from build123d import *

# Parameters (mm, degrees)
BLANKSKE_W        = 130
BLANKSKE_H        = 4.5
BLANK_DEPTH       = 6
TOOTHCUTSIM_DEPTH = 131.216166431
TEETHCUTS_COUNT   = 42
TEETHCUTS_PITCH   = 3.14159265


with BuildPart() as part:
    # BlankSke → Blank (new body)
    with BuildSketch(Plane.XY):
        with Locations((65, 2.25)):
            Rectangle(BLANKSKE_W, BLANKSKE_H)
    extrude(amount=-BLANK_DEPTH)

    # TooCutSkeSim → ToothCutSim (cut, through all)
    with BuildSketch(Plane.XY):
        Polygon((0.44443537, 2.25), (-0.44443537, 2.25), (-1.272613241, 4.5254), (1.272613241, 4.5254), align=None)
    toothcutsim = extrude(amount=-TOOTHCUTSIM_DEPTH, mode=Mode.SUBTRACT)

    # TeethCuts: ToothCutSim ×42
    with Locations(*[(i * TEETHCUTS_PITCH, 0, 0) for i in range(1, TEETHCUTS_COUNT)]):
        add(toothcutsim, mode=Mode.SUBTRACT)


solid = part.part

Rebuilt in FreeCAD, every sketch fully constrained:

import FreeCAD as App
import Part
import Sketcher
Q = App.Units.Quantity


def add_polygon(sketch, points):
    """Adds a closed chain of lines whose ends are joined by coincident constraints."""
    first, n = sketch.GeometryCount, len(points)
    for a, b in zip(points, points[1:] + points[:1]):
        sketch.addGeometry(Part.LineSegment(App.Vector(*a, 0), App.Vector(*b, 0)), False)
    for i in range(n):
        sketch.addConstraint(Sketcher.Constraint("Coincident", first + i, 2, first + (i + 1) % n, 1))

doc = App.newDocument("Part")
params = doc.addObject("Spreadsheet::Sheet", "Params")
for row, (alias, value) in enumerate([
    ("sketch1_width", "130 mm"),
    ("sketch1_height", "4.5 mm"),
    ("pad1_length", "6 mm"),
    ("linearpattern_pitch", "3.141593 mm"),
], start=1):
    params.set(f"A{row}", alias)
    params.set(f"B{row}", "=" + value)
    params.setAlias(f"B{row}", alias)

body = doc.addObject("PartDesign::Body", "Body")

sketch1 = body.newObject("Sketcher::SketchObject", "Sketch")
sketch1.AttachmentSupport = (doc.getObject("XY_Plane"), [""])
sketch1.MapMode = "FlatFace"
add_polygon(sketch1, [(0, 4.5), (0, 0), (130, 0), (130, 4.5)])
sketch1.addConstraint([
    Sketcher.Constraint("Vertical", 0),
    Sketcher.Constraint("Horizontal", 1),
    Sketcher.Constraint("Vertical", 2),
    Sketcher.Constraint("Horizontal", 3),
    Sketcher.Constraint("Coincident", 0, 2, -1, 1),
    Sketcher.Constraint("DistanceX", 1, 1, 1, 2, 130.0),
    Sketcher.Constraint("DistanceY", 0, 2, 0, 1, 4.5),
])
sketch1.setExpression("Constraints[9]", "Params.sketch1_width")
sketch1.setExpression("Constraints[10]", "Params.sketch1_height")
pad1 = body.newObject("PartDesign::Pad", "Pad")
pad1.Profile = sketch1
pad1.setExpression("Length", "Params.pad1_length")
pad1.Reversed = True

sketch2 = body.newObject("Sketcher::SketchObject", "Sketch001")
sketch2.AttachmentSupport = (doc.getObject("XY_Plane"), [""])
sketch2.MapMode = "FlatFace"
add_polygon(sketch2, [(-0.444435, 2.25), (0.444435, 2.25), (1.272613, 4.5254), (-1.272613, 4.5254)])
sketch2.addConstraint([
    Sketcher.Constraint("Horizontal", 0),
    Sketcher.Constraint("Horizontal", 2),
    Sketcher.Constraint("Equal", 1, 3),
    Sketcher.Constraint("Angle", 1, Q("70 deg")),
    Sketcher.Constraint("DistanceY", -1, 1, 0, 2, 2.25),
    Sketcher.Constraint("DistanceX", 0, 1, 0, 2, 0.888871),
    Sketcher.Constraint("DistanceY", -1, 1, 1, 2, 4.5254),
    Sketcher.Constraint("DistanceX", -1, 1, 0, 2, 0.444435),
])
pocket1 = body.newObject("PartDesign::Pocket", "Pocket")
pocket1.Profile = sketch2
pocket1.Type = "ThroughAll"
doc.recompute()

linearpattern = body.newObject("PartDesign::LinearPattern", "LinearPattern")
linearpattern.Originals = [pocket1]
linearpattern.Direction = (doc.getObject("X_Axis"), [""])
linearpattern.Mode = "offset"
linearpattern.setExpression("Offset", "Params.linearpattern_pitch")
linearpattern.Occurrences = 42
body.Tip = linearpattern

doc.recompute()
